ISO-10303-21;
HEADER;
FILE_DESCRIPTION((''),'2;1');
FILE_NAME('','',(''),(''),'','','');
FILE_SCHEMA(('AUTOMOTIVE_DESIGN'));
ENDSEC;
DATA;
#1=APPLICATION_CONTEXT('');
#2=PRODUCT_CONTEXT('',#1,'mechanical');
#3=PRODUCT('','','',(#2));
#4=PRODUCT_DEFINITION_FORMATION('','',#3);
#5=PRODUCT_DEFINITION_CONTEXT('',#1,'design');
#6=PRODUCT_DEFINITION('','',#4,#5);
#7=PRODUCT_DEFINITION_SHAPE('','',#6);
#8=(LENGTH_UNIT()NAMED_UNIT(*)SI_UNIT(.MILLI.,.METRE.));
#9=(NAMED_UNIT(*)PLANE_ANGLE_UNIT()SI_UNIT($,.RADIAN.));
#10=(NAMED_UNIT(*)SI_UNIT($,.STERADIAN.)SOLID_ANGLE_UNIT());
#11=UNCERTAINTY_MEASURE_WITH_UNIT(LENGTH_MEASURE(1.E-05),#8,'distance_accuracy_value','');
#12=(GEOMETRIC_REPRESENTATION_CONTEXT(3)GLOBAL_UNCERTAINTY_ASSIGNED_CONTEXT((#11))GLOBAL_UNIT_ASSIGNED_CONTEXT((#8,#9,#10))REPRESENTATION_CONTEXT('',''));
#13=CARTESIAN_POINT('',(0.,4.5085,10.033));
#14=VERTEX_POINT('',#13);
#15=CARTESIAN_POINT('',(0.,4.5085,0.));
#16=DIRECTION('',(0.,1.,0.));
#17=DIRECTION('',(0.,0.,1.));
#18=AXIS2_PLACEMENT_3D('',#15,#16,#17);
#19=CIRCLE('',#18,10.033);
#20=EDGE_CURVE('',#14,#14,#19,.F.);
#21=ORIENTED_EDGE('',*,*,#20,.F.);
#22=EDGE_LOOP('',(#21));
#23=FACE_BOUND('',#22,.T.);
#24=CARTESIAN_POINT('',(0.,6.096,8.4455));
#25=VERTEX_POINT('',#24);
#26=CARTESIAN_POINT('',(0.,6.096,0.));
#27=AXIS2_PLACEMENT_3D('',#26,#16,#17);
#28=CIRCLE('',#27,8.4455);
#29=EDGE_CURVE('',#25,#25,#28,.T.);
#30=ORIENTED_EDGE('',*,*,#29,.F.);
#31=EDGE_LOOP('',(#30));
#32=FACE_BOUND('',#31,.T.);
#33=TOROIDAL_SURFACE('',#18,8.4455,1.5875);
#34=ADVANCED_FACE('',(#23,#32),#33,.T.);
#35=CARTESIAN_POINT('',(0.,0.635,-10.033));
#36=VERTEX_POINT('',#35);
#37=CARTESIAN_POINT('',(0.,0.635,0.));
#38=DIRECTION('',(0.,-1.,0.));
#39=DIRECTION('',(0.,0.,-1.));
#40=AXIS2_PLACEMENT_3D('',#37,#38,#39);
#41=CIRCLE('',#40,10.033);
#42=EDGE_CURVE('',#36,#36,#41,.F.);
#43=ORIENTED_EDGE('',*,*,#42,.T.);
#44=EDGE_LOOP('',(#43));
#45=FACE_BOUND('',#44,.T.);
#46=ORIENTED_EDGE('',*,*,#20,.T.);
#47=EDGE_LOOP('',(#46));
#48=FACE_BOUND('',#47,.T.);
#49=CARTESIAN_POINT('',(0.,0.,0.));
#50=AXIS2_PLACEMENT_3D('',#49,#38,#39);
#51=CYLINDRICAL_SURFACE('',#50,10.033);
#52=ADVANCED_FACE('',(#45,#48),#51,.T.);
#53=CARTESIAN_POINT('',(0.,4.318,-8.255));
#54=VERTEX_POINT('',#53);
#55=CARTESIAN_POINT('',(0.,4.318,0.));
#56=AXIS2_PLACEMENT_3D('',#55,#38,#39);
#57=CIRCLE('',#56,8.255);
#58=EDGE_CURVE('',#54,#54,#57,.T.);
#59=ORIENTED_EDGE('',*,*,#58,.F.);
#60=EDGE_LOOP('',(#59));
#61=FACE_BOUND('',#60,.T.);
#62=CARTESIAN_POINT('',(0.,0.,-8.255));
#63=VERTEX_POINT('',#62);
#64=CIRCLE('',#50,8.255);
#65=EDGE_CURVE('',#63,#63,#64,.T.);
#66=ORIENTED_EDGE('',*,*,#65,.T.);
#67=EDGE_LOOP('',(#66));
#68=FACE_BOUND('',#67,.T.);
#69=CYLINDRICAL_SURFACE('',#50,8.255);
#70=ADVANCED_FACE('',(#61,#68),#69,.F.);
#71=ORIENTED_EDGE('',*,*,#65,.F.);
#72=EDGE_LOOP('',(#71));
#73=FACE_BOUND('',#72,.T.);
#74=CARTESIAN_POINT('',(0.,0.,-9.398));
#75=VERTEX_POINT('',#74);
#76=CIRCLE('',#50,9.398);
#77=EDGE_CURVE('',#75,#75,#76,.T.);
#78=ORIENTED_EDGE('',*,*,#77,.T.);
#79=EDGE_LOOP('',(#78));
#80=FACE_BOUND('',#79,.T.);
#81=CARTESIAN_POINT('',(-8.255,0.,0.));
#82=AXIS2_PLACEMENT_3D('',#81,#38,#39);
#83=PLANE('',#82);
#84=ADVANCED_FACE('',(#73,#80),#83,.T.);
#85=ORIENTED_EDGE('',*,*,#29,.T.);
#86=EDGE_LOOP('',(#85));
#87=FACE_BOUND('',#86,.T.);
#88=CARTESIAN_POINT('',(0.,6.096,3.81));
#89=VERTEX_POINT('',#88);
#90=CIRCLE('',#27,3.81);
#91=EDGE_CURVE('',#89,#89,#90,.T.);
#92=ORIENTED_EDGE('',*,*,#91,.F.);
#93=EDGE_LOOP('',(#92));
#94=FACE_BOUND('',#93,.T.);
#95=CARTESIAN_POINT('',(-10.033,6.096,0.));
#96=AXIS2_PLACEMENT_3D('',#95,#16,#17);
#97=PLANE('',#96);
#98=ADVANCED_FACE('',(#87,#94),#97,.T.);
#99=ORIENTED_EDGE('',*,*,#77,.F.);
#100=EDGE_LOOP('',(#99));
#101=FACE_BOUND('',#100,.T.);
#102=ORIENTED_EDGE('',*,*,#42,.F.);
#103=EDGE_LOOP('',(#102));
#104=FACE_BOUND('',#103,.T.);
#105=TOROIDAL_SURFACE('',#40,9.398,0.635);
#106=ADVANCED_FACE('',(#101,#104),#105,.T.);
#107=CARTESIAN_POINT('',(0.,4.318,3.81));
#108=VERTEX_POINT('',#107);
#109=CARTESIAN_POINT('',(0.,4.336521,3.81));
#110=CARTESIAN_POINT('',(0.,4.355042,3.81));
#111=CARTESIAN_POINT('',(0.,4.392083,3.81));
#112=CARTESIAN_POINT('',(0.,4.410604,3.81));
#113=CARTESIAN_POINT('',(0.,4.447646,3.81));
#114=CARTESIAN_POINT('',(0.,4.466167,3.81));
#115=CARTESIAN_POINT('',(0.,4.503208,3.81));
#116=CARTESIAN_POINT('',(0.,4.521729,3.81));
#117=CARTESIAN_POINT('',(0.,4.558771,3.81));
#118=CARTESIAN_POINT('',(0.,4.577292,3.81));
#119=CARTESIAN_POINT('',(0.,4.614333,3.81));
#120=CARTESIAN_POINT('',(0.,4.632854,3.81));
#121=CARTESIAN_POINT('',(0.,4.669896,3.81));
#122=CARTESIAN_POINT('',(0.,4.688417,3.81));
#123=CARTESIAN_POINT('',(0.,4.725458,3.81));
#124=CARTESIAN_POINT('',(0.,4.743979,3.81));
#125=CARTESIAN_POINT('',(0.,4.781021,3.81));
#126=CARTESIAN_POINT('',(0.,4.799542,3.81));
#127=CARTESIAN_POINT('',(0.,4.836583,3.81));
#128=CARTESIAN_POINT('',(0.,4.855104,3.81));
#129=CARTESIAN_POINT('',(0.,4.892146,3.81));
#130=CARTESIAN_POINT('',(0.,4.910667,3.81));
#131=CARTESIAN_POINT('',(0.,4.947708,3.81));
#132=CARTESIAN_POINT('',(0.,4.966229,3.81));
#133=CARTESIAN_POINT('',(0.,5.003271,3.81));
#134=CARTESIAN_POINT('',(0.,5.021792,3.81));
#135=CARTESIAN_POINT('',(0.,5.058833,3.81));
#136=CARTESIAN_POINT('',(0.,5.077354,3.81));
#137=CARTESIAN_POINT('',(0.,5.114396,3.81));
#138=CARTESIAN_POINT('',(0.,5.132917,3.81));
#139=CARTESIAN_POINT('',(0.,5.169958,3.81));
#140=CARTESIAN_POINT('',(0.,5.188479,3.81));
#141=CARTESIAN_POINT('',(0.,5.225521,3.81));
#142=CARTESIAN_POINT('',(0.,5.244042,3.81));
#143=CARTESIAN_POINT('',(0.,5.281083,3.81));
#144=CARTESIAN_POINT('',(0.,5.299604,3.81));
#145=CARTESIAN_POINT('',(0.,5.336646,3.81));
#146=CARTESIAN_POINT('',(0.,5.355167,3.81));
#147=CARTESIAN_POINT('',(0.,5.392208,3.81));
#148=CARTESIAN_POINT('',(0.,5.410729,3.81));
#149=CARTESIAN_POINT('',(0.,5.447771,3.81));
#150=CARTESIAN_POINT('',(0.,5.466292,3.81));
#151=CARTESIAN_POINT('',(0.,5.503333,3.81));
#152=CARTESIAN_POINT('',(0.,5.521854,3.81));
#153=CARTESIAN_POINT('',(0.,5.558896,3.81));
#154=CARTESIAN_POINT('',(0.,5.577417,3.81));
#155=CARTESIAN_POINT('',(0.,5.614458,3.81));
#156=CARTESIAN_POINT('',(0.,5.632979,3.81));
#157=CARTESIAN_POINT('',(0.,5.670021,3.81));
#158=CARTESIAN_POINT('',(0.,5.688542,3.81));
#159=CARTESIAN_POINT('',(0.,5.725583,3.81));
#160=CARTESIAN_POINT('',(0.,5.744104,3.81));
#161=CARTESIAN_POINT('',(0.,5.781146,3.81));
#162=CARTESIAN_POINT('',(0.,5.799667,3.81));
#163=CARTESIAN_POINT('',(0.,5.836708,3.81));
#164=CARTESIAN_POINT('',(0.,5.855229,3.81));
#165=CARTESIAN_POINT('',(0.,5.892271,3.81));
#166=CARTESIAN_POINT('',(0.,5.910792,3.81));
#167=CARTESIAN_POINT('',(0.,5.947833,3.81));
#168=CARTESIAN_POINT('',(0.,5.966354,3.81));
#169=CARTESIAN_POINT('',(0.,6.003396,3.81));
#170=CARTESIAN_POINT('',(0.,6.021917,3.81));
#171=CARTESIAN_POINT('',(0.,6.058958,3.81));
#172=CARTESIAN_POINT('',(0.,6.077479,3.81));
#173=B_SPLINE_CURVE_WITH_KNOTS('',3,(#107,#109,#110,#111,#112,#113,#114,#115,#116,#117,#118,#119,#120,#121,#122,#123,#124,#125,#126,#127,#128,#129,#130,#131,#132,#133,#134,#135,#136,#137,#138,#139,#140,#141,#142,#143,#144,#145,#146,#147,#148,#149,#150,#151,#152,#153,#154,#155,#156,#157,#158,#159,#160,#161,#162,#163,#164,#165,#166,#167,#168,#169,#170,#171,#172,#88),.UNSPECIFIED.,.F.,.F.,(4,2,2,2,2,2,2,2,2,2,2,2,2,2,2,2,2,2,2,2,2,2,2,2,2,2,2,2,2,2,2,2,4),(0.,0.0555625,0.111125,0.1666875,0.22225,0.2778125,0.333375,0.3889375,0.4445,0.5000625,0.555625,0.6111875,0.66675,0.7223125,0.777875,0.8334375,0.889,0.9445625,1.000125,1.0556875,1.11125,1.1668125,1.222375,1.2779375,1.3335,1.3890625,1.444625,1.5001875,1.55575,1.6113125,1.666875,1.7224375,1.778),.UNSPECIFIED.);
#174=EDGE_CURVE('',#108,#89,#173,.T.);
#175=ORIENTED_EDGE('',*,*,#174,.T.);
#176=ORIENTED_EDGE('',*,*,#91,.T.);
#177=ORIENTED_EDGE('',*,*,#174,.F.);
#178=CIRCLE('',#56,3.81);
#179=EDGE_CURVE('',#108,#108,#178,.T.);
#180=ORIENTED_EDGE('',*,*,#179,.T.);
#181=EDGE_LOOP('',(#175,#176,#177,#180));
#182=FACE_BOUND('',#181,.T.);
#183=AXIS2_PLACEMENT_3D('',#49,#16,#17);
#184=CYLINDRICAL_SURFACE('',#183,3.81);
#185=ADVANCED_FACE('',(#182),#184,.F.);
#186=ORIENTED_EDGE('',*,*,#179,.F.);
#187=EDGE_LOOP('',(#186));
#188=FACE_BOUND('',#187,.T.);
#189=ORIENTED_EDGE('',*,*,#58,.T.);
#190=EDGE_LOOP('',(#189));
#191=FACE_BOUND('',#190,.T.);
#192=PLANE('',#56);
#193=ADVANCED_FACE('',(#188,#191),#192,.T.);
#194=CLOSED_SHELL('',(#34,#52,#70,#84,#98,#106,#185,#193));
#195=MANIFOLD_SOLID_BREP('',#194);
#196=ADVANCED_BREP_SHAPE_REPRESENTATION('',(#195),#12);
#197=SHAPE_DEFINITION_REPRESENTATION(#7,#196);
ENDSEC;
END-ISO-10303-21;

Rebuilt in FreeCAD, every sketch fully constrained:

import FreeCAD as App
import Part
import Sketcher

V = App.Vector
Q = App.Units.Quantity


def edges_at(feature, points):
    """Names of the edges that pass closest to the given points."""
    edges = feature.Shape.Edges
    near = lambda p: min(range(len(edges)), key=lambda i: edges[i].distToShape(Part.Vertex(*p))[0])
    return sorted({f"Edge{near(p) + 1}" for p in points})


def add_polygon(sketch, points):
    """Adds a closed chain of lines whose ends are joined by coincident constraints."""
    first, n = sketch.GeometryCount, len(points)
    for a, b in zip(points, points[1:] + points[:1]):
        sketch.addGeometry(Part.LineSegment(App.Vector(*a, 0), App.Vector(*b, 0)), False)
    for i in range(n):
        sketch.addConstraint(Sketcher.Constraint("Coincident", first + i, 2, first + (i + 1) % n, 1))

doc = App.newDocument("Part")
body = doc.addObject("PartDesign::Body", "Body")

# Sketch on XY plane
sketch1 = body.newObject("Sketcher::SketchObject", "Sketch")
sketch1.AttachmentSupport = (doc.getObject("XY_Plane"), [""])
sketch1.MapMode = "FlatFace"
add_polygon(sketch1, [(-10, 0), (-8.3, 0), (-8.3, 4.3), (0, 4.3), (0, 6.1), (-10, 6.1)])  # lines 0-5
sketch1.addConstraint([
    Sketcher.Constraint("Horizontal", 0),
    Sketcher.Constraint("Vertical", 1),
    Sketcher.Constraint("Horizontal", 2),
    Sketcher.Constraint("Vertical", 3),
    Sketcher.Constraint("Horizontal", 4),
    Sketcher.Constraint("Vertical", 5),
    Sketcher.Constraint("PointOnObject", 0, 2, -1),
    Sketcher.Constraint("PointOnObject", 2, 2, -2),
    Sketcher.Constraint("Equal", 0, 3),
    Sketcher.Constraint("DistanceX", 0, 1, 0, 2, Q("0.07 in")),
    Sketcher.Constraint("DistanceY", 1, 1, 1, 2, Q("0.17 in")),
    Sketcher.Constraint("DistanceX", 2, 1, 2, 2, Q("0.325 in")),
])
revolution = body.newObject("PartDesign::Revolution", "Revolution")
revolution.Profile = sketch1
revolution.ReferenceAxis = (sketch1, ["V_Axis"])
revolution.Angle = 360
doc.recompute()

fillet = body.newObject("PartDesign::Fillet", "Fillet")
fillet.Base = (revolution, edges_at(revolution, [(0, 6.096, 10.033)]))
fillet.Radius = Q("0.0625 in")

# Sketch on XZ plane
sketch2 = body.newObject("Sketcher::SketchObject", "Sketch001")
sketch2.AttachmentSupport = (doc.getObject("XZ_Plane"), [""])
sketch2.MapMode = "FlatFace"
sketch2.AttachmentOffset = App.Placement(V(0, 0, -0.24 * 25.4), App.Rotation())
sketch2.addGeometry(Part.Circle(V(0, 0, 0), V(0, 0, 1), 3.8), False)
sketch2.addConstraint([
    Sketcher.Constraint("Coincident", 0, 3, -1, 1),
    Sketcher.Constraint("Diameter", 0, Q("0.3 in")),
])
pocket1 = body.newObject("PartDesign::Pocket", "Pocket")
pocket1.Profile = sketch2
pocket1.Type = "ThroughAll"
pocket1.Reversed = True
doc.recompute()

fillet2 = body.newObject("PartDesign::Fillet", "Fillet001")
fillet2.Base = (pocket1, edges_at(pocket1, [(0, 0, 10.033)]))
fillet2.Radius = Q("0.025 in")

doc.recompute()
